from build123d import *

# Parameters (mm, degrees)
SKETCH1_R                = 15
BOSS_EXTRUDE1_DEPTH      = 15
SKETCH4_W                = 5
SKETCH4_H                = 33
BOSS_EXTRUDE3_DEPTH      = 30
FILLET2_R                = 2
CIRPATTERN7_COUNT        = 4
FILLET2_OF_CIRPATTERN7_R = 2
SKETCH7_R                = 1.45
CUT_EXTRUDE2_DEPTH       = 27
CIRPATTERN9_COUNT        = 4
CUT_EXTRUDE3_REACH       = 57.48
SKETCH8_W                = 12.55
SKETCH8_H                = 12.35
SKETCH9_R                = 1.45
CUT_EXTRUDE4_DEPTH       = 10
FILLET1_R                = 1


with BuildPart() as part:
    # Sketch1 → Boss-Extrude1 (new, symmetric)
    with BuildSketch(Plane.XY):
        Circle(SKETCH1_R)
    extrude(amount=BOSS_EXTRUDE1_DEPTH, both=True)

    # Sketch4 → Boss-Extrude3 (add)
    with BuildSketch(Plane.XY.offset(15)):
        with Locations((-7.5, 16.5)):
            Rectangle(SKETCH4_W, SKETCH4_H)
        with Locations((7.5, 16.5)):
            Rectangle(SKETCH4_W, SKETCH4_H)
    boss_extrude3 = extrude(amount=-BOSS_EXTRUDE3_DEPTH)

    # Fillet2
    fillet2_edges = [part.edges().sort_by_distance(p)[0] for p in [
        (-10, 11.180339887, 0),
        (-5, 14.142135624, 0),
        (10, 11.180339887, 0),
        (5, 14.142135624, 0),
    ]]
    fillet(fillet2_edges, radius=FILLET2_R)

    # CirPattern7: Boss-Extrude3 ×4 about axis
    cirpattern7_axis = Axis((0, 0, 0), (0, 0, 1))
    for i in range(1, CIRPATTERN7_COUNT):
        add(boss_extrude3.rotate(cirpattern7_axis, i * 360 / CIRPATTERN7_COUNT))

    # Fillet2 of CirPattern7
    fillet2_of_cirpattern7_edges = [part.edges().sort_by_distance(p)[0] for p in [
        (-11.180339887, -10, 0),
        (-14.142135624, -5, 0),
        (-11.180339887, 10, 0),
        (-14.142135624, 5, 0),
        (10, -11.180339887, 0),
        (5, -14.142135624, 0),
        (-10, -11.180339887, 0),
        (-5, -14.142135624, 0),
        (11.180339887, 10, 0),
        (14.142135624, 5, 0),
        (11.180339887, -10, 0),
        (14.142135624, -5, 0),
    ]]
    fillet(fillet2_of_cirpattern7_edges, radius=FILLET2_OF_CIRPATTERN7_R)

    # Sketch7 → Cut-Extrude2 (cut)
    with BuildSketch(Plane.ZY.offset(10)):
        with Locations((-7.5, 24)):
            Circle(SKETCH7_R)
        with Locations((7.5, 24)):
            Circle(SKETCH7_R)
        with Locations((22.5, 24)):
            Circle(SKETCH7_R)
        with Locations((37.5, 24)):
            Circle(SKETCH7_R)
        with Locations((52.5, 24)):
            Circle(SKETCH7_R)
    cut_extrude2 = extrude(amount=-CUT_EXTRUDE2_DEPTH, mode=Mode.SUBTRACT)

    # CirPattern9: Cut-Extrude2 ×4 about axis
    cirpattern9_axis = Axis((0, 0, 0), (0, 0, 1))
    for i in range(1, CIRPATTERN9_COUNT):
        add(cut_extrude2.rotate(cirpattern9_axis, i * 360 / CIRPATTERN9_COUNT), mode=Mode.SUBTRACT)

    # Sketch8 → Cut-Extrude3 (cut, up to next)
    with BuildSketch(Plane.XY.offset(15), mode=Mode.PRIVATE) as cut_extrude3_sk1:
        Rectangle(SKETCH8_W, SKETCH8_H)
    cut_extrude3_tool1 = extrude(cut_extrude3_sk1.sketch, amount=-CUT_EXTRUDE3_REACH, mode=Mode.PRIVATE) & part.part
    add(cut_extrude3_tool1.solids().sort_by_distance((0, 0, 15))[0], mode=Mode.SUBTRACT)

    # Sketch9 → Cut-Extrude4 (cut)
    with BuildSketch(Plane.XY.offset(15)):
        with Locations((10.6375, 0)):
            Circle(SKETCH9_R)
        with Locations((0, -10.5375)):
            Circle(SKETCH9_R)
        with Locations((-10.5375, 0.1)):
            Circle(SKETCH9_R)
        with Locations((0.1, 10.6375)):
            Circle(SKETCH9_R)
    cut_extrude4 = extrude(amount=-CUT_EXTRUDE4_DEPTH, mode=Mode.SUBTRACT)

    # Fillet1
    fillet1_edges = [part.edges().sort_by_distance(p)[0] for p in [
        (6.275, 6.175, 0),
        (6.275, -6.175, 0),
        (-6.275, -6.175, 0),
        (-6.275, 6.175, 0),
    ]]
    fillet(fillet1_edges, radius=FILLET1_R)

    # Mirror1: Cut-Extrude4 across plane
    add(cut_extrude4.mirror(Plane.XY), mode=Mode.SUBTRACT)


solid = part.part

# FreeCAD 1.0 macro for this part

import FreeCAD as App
import Part
import Sketcher


def edges_at(feature, points):
    """Names of the edges that pass closest to the given points."""
    edges = feature.Shape.Edges
    near = lambda p: min(range(len(edges)), key=lambda i: edges[i].distToShape(Part.Vertex(*p))[0])
    return sorted({f"Edge{near(p) + 1}" for p in points})


def add_polygon(sketch, points):
    """Adds a closed chain of lines whose ends are joined by coincident constraints."""
    first, n = sketch.GeometryCount, len(points)
    for a, b in zip(points, points[1:] + points[:1]):
        sketch.addGeometry(Part.LineSegment(App.Vector(*a, 0), App.Vector(*b, 0)), False)
    for i in range(n):
        sketch.addConstraint(Sketcher.Constraint("Coincident", first + i, 2, first + (i + 1) % n, 1))

doc = App.newDocument("Part")
params = doc.addObject("Spreadsheet::Sheet", "Params")
for row, (alias, value) in enumerate([
    ("sketch1_diameter", "30 mm"),
    ("pad1_length", "30 mm"),
    ("sketch2_width", "5 mm"),
    ("sketch2_height", "33 mm"),
    ("pad2_length", "30 mm"),
    ("fillet_radius", "2 mm"),
    ("fillet2_radius", "2 mm"),
    ("sketch3_diameter", "2.9 mm"),
    ("pocket1_length", "27 mm"),
    ("sketch4_width", "12.55 mm"),
    ("sketch4_height", "12.35 mm"),
    ("sketch5_diameter", "2.9 mm"),
    ("pocket3_length", "10 mm"),
    ("fillet3_radius", "1 mm"),
], start=1):
    params.set(f"A{row}", alias)
    params.set(f"B{row}", "=" + value)
    params.setAlias(f"B{row}", alias)

body = doc.addObject("PartDesign::Body", "Body")

sketch1 = doc.addObject("Sketcher::SketchObject", "Sketch")
body.addObject(sketch1)
sketch1.AttachmentSupport = (doc.XY_Plane, [""])
sketch1.MapMode = "FlatFace"
sketch1.addGeometry(Part.Circle(App.Vector(0, 0, 0), App.Vector(0, 0, 1), 15), False)
sketch1.addConstraint(Sketcher.Constraint("Coincident", 0, 3, -1, 1))
sketch1.addConstraint(Sketcher.Constraint("Diameter", 0, 30.0))
sketch1.setExpression("Constraints[1]", "Params.sketch1_diameter")
pad1 = doc.addObject("PartDesign::Pad", "Pad")
body.addObject(pad1)
pad1.Profile = sketch1
pad1.setExpression("Length", "Params.pad1_length")
pad1.Midplane = True

sketch2 = doc.addObject("Sketcher::SketchObject", "Sketch001")
body.addObject(sketch2)
sketch2.AttachmentSupport = (doc.XY_Plane, [""])
sketch2.MapMode = "FlatFace"
sketch2.AttachmentOffset = App.Placement(App.Vector(0, 0, 15), App.Rotation())
add_polygon(sketch2, [(-10, 33), (-10, 0), (-5, 0), (-5, 33)])
add_polygon(sketch2, [(5, 33), (5, 0), (10, 0), (10, 33)])
sketch2.addConstraint(Sketcher.Constraint("Vertical", 0))
sketch2.addConstraint(Sketcher.Constraint("Horizontal", 1))
sketch2.addConstraint(Sketcher.Constraint("Vertical", 2))
sketch2.addConstraint(Sketcher.Constraint("Horizontal", 3))
sketch2.addConstraint(Sketcher.Constraint("Vertical", 4))
sketch2.addConstraint(Sketcher.Constraint("Horizontal", 5))
sketch2.addConstraint(Sketcher.Constraint("Vertical", 6))
sketch2.addConstraint(Sketcher.Constraint("Horizontal", 7))
sketch2.addConstraint(Sketcher.Constraint("Symmetric", 1, 2, 4, 2, -1, 1))
sketch2.addConstraint(Sketcher.Constraint("Symmetric", 0, 2, 5, 2, -2))
sketch2.addConstraint(Sketcher.Constraint("Horizontal", 3, 2, 6, 2))
sketch2.addConstraint(Sketcher.Constraint("DistanceX", 1, 1, 1, 2, 5.0))
sketch2.addConstraint(Sketcher.Constraint("DistanceY", 0, 2, 0, 1, 33.0))
sketch2.addConstraint(Sketcher.Constraint("DistanceX", 0, 2, -1, 1, 10.0))
sketch2.setExpression("Constraints[19]", "Params.sketch2_width")
sketch2.setExpression("Constraints[20]", "Params.sketch2_height")
pad2 = doc.addObject("PartDesign::Pad", "Pad001")
body.addObject(pad2)
pad2.Profile = sketch2
pad2.setExpression("Length", "Params.pad2_length")
pad2.Reversed = True
doc.recompute()

fillet = doc.addObject("PartDesign::Fillet", "Fillet")
body.addObject(fillet)
fillet.Base = (pad2, edges_at(pad2, [
    (-10, 11.18, 0),
    (-5, 14.142, 0),
    (10, 11.18, 0),
    (5, 14.142, 0),
]))
fillet.setExpression("Radius", "Params.fillet_radius")
doc.recompute()

polarpattern = doc.addObject("PartDesign::PolarPattern", "PolarPattern")
body.addObject(polarpattern)
polarpattern.Originals = [pad2]
polarpattern.Axis = (doc.Z_Axis, [""])
polarpattern.Angle = 360
polarpattern.Occurrences = 4
body.Tip = polarpattern
doc.recompute()

fillet2 = doc.addObject("PartDesign::Fillet", "Fillet001")
body.addObject(fillet2)
fillet2.Base = (polarpattern, edges_at(polarpattern, [
    (-11.18, -10, 0),
    (-14.142, -5, 0),
    (-11.18, 10, 0),
    (-14.142, 5, 0),
    (10, -11.18, 0),
    (5, -14.142, 0),
    (-10, -11.18, 0),
    (-5, -14.142, 0),
    (11.18, 10, 0),
    (14.142, 5, 0),
    (11.18, -10, 0),
    (14.142, -5, 0),
]))
fillet2.setExpression("Radius", "Params.fillet2_radius")

sketch3 = doc.addObject("Sketcher::SketchObject", "Sketch002")
body.addObject(sketch3)
sketch3.AttachmentSupport = (doc.YZ_Plane, [""])
sketch3.MapMode = "FlatFace"
sketch3.AttachmentOffset = App.Placement(App.Vector(0, 0, -10), App.Rotation())
sketch3.addGeometry(Part.Circle(App.Vector(24, -7.5, 0), App.Vector(0, 0, 1), 1.45), False)
sketch3.addGeometry(Part.Circle(App.Vector(24, 7.5, 0), App.Vector(0, 0, 1), 1.45), False)
sketch3.addGeometry(Part.Circle(App.Vector(24, 22.5, 0), App.Vector(0, 0, 1), 1.45), False)
sketch3.addGeometry(Part.Circle(App.Vector(24, 37.5, 0), App.Vector(0, 0, 1), 1.45), False)
sketch3.addGeometry(Part.Circle(App.Vector(24, 52.5, 0), App.Vector(0, 0, 1), 1.45), False)
sketch3.addConstraint(Sketcher.Constraint("Equal", 0, 1))
sketch3.addConstraint(Sketcher.Constraint("Equal", 1, 2))
sketch3.addConstraint(Sketcher.Constraint("Equal", 2, 3))
sketch3.addConstraint(Sketcher.Constraint("Equal", 3, 4))
sketch3.addConstraint(Sketcher.Constraint("Symmetric", 0, 3, 1, 3, -1))
sketch3.addConstraint(Sketcher.Constraint("Vertical", 1, 3, 2, 3))
sketch3.addConstraint(Sketcher.Constraint("Vertical", 2, 3, 3, 3))
sketch3.addConstraint(Sketcher.Constraint("Vertical", 3, 3, 4, 3))
sketch3.addConstraint(Sketcher.Constraint("Diameter", 0, 2.9))
sketch3.addConstraint(Sketcher.Constraint("DistanceX", -1, 1, 0, 3, 24.0))
sketch3.addConstraint(Sketcher.Constraint("DistanceY", 0, 3, 1, 3, 15.0))
sketch3.addConstraint(Sketcher.Constraint("DistanceY", 1, 3, 2, 3, 15.0))
sketch3.addConstraint(Sketcher.Constraint("DistanceY", 2, 3, 3, 3, 15.0))
sketch3.addConstraint(Sketcher.Constraint("DistanceY", 3, 3, 4, 3, 15.0))
sketch3.setExpression("Constraints[8]", "Params.sketch3_diameter")
pocket1 = doc.addObject("PartDesign::Pocket", "Pocket")
body.addObject(pocket1)
pocket1.Profile = sketch3
pocket1.setExpression("Length", "Params.pocket1_length")
pocket1.Reversed = True
doc.recompute()

polarpattern2 = doc.addObject("PartDesign::PolarPattern", "PolarPattern001")
body.addObject(polarpattern2)
polarpattern2.Originals = [pocket1]
polarpattern2.Axis = (doc.Z_Axis, [""])
polarpattern2.Angle = 360
polarpattern2.Occurrences = 4
body.Tip = polarpattern2

sketch4 = doc.addObject("Sketcher::SketchObject", "Sketch003")
body.addObject(sketch4)
sketch4.AttachmentSupport = (doc.XY_Plane, [""])
sketch4.MapMode = "FlatFace"
sketch4.AttachmentOffset = App.Placement(App.Vector(0, 0, 15), App.Rotation())
add_polygon(sketch4, [(-6.275, 6.175), (-6.275, -6.175), (6.275, -6.175), (6.275, 6.175)])
sketch4.addConstraint(Sketcher.Constraint("Vertical", 0))
sketch4.addConstraint(Sketcher.Constraint("Horizontal", 1))
sketch4.addConstraint(Sketcher.Constraint("Vertical", 2))
sketch4.addConstraint(Sketcher.Constraint("Horizontal", 3))
sketch4.addConstraint(Sketcher.Constraint("Symmetric", 0, 2, 2, 2, -1, 1))
sketch4.addConstraint(Sketcher.Constraint("DistanceX", 1, 1, 1, 2, 12.55))
sketch4.addConstraint(Sketcher.Constraint("DistanceY", 0, 2, 0, 1, 12.35))
sketch4.setExpression("Constraints[9]", "Params.sketch4_width")
sketch4.setExpression("Constraints[10]", "Params.sketch4_height")
pocket2 = doc.addObject("PartDesign::Pocket", "Pocket001")
body.addObject(pocket2)
pocket2.Profile = sketch4
pocket2.Type = "UpToFirst"

sketch5 = doc.addObject("Sketcher::SketchObject", "Sketch004")
body.addObject(sketch5)
sketch5.AttachmentSupport = (doc.XY_Plane, [""])
sketch5.MapMode = "FlatFace"
sketch5.AttachmentOffset = App.Placement(App.Vector(0, 0, 15), App.Rotation())
sketch5.addGeometry(Part.Circle(App.Vector(10.6375, 0, 0), App.Vector(0, 0, 1), 1.45), False)
sketch5.addGeometry(Part.Circle(App.Vector(0, -10.5375, 0), App.Vector(0, 0, 1), 1.45), False)
sketch5.addGeometry(Part.Circle(App.Vector(-10.5375, 0.1, 0), App.Vector(0, 0, 1), 1.45), False)
sketch5.addGeometry(Part.Circle(App.Vector(0.1, 10.6375, 0), App.Vector(0, 0, 1), 1.45), False)
sketch5.addConstraint(Sketcher.Constraint("Equal", 0, 1))
sketch5.addConstraint(Sketcher.Constraint("Equal", 1, 2))
sketch5.addConstraint(Sketcher.Constraint("Equal", 2, 3))
sketch5.addConstraint(Sketcher.Constraint("PointOnObject", 0, 3, -1))
sketch5.addConstraint(Sketcher.Constraint("PointOnObject", 1, 3, -2))
sketch5.addConstraint(Sketcher.Constraint("Diameter", 0, 2.9))
sketch5.addConstraint(Sketcher.Constraint("DistanceY", -1, 1, 2, 3, 0.1))
sketch5.addConstraint(Sketcher.Constraint("DistanceX", -1, 1, 3, 3, 0.1))
sketch5.addConstraint(Sketcher.Constraint("DistanceX", 2, 3, 0, 3, 21.175))
sketch5.addConstraint(Sketcher.Constraint("DistanceY", 1, 3, 3, 3, 21.175))
sketch5.addConstraint(Sketcher.Constraint("DistanceX", -1, 1, 0, 3, 10.6375))
sketch5.addConstraint(Sketcher.Constraint("DistanceY", 1, 3, -1, 1, 10.5375))
sketch5.setExpression("Constraints[5]", "Params.sketch5_diameter")
pocket3 = doc.addObject("PartDesign::Pocket", "Pocket002")
body.addObject(pocket3)
pocket3.Profile = sketch5
pocket3.setExpression("Length", "Params.pocket3_length")
doc.recompute()

fillet3 = doc.addObject("PartDesign::Fillet", "Fillet002")
body.addObject(fillet3)
fillet3.Base = (pocket3, edges_at(pocket3, [
    (6.275, 6.175, 0),
    (6.275, -6.175, 0),
    (-6.275, -6.175, 0),
    (-6.275, 6.175, 0),
]))
fillet3.setExpression("Radius", "Params.fillet3_radius")
doc.recompute()

mirrored = doc.addObject("PartDesign::Mirrored", "Mirrored")
body.addObject(mirrored)
mirrored.Originals = [pocket3]
mirrored.MirrorPlane = (doc.XY_Plane, [""])
body.Tip = mirrored

doc.recompute()
